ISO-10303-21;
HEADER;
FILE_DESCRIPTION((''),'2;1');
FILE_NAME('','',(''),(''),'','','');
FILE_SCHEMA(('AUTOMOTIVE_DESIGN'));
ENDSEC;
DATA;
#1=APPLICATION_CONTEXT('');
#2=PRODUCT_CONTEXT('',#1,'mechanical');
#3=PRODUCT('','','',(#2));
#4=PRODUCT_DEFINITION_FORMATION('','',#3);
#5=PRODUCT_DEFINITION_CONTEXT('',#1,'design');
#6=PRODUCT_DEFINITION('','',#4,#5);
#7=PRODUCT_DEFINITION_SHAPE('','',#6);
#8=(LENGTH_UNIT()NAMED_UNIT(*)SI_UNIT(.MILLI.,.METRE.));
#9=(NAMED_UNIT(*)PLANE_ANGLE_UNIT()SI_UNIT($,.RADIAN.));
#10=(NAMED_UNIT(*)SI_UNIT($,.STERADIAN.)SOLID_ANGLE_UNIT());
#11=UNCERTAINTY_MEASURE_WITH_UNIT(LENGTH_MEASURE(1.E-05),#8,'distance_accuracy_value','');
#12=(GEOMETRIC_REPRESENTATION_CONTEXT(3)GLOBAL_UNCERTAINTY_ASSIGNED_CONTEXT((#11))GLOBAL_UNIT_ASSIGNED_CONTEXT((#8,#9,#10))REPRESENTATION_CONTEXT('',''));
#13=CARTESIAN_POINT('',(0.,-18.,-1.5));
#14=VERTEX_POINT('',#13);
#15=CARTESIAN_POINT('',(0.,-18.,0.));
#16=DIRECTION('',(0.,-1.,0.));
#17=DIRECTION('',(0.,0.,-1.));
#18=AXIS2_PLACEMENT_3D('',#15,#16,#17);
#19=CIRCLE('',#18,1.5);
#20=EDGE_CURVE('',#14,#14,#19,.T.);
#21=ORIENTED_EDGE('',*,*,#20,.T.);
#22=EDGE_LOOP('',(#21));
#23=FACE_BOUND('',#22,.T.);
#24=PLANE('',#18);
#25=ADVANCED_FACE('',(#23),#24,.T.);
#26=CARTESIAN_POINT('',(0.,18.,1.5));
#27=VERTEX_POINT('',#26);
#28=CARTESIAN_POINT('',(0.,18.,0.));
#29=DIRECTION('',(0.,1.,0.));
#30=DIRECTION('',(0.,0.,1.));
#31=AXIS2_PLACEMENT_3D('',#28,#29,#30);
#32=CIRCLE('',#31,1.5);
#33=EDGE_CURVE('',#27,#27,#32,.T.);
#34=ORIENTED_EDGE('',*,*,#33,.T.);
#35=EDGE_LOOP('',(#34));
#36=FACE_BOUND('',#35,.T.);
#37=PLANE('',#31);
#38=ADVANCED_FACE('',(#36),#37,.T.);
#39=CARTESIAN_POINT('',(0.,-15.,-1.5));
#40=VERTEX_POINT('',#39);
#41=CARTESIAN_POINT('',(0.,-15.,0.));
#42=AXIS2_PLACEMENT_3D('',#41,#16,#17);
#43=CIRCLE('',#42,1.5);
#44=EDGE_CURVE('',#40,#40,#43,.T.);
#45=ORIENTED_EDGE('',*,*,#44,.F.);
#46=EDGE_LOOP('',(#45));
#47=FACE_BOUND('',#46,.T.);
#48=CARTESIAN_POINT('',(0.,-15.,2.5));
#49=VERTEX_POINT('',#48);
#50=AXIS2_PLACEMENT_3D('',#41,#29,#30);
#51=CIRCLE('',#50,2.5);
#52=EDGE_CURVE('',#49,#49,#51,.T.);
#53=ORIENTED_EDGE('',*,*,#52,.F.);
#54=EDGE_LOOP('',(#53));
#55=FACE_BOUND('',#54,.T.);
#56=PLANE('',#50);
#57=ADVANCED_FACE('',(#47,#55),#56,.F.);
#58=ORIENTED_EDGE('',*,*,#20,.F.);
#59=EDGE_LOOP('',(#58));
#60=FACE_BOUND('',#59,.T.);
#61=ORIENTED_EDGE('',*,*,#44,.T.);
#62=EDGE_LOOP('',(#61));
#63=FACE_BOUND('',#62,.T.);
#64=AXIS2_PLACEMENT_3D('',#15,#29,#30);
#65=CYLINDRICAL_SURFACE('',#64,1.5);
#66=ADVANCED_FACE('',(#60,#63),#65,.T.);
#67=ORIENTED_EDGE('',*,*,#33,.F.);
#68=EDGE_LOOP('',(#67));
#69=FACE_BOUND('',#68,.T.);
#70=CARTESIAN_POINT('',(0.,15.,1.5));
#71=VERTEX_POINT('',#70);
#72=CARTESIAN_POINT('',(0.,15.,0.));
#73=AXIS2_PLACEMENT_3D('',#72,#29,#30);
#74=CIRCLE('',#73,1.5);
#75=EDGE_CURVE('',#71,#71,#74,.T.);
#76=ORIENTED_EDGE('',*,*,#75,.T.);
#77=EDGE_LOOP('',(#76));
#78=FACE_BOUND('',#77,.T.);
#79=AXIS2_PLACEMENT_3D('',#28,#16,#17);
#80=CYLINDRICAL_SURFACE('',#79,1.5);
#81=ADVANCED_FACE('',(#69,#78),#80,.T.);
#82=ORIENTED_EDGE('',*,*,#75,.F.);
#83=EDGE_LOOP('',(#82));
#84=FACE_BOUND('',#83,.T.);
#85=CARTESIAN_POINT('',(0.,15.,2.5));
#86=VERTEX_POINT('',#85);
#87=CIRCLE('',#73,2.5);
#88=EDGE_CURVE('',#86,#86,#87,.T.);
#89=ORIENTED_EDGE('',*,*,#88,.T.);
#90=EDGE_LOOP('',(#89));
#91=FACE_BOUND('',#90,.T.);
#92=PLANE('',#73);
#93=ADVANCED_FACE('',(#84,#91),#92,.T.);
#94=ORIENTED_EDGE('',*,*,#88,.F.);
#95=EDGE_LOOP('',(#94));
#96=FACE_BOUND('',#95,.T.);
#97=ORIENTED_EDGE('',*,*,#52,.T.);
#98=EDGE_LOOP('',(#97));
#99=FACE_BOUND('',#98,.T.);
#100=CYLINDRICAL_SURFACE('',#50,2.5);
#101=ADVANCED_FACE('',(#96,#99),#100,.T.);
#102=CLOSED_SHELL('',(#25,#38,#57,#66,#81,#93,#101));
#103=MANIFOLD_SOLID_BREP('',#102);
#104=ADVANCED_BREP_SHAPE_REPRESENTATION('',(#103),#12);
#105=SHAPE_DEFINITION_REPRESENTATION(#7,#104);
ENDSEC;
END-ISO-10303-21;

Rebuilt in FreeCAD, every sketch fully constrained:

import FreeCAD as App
import Part
import Sketcher

V = App.Vector
Q = App.Units.Quantity

doc = App.newDocument("Part")
params = doc.addObject("Spreadsheet::Sheet", "Params")
for row, (alias, value) in enumerate([
    ("sketch1_diameter", "5 mm"),
    ("pad1_length", "30 mm"),
    ("sketch2_diameter", "3 mm"),
    ("pad2_length", "3 mm"),
    ("sketch3_diameter", "3 mm"),
    ("pad3_length", "3 mm"),
], start=1):
    params.set(f"A{row}", alias)
    params.set(f"B{row}", "=" + value)
    params.setAlias(f"B{row}", alias)

body = doc.addObject("PartDesign::Body", "Body")

# Sketch on XZ plane
sketch1 = doc.addObject("Sketcher::SketchObject", "Sketch")
body.addObject(sketch1)
sketch1.AttachmentSupport = (doc.XZ_Plane, [""])
sketch1.MapMode = "FlatFace"
sketch1.addGeometry(Part.Circle(V(0, 0, 0), V(0, 0, 1), 2.5), False)
sketch1.addConstraint([
    Sketcher.Constraint("Coincident", 0, 3, -1, 1),
    Sketcher.Constraint("Diameter", 0, Q("5 mm")),
])
sketch1.setExpression("Constraints[1]", "Params.sketch1_diameter")
pad1 = doc.addObject("PartDesign::Pad", "Pad")
body.addObject(pad1)
pad1.Profile = sketch1
pad1.setExpression("Length", "Params.pad1_length")
pad1.Midplane = True

# Sketch on XZ plane
sketch2 = doc.addObject("Sketcher::SketchObject", "Sketch001")
body.addObject(sketch2)
sketch2.AttachmentSupport = (doc.XZ_Plane, [""])
sketch2.MapMode = "FlatFace"
sketch2.AttachmentOffset = App.Placement(V(0, 0, -15), App.Rotation())
sketch2.addGeometry(Part.Circle(V(0, 0, 0), V(0, 0, 1), 1.5), False)
sketch2.addConstraint([
    Sketcher.Constraint("Coincident", 0, 3, -1, 1),
    Sketcher.Constraint("Diameter", 0, Q("3 mm")),
])
sketch2.setExpression("Constraints[1]", "Params.sketch2_diameter")
pad2 = doc.addObject("PartDesign::Pad", "Pad001")
body.addObject(pad2)
pad2.Profile = sketch2
pad2.setExpression("Length", "Params.pad2_length")
pad2.Reversed = True

# Sketch on XZ plane
sketch3 = doc.addObject("Sketcher::SketchObject", "Sketch002")
body.addObject(sketch3)
sketch3.AttachmentSupport = (doc.XZ_Plane, [""])
sketch3.MapMode = "FlatFace"
sketch3.AttachmentOffset = App.Placement(V(0, 0, 18), App.Rotation())
sketch3.addGeometry(Part.Circle(V(0, 0, 0), V(0, 0, 1), 1.5), False)
sketch3.addConstraint([
    Sketcher.Constraint("Coincident", 0, 3, -1, 1),
    Sketcher.Constraint("Diameter", 0, Q("3 mm")),
])
sketch3.setExpression("Constraints[1]", "Params.sketch3_diameter")
pad3 = doc.addObject("PartDesign::Pad", "Pad002")
body.addObject(pad3)
pad3.Profile = sketch3
pad3.setExpression("Length", "Params.pad3_length")
pad3.Reversed = True

doc.recompute()
